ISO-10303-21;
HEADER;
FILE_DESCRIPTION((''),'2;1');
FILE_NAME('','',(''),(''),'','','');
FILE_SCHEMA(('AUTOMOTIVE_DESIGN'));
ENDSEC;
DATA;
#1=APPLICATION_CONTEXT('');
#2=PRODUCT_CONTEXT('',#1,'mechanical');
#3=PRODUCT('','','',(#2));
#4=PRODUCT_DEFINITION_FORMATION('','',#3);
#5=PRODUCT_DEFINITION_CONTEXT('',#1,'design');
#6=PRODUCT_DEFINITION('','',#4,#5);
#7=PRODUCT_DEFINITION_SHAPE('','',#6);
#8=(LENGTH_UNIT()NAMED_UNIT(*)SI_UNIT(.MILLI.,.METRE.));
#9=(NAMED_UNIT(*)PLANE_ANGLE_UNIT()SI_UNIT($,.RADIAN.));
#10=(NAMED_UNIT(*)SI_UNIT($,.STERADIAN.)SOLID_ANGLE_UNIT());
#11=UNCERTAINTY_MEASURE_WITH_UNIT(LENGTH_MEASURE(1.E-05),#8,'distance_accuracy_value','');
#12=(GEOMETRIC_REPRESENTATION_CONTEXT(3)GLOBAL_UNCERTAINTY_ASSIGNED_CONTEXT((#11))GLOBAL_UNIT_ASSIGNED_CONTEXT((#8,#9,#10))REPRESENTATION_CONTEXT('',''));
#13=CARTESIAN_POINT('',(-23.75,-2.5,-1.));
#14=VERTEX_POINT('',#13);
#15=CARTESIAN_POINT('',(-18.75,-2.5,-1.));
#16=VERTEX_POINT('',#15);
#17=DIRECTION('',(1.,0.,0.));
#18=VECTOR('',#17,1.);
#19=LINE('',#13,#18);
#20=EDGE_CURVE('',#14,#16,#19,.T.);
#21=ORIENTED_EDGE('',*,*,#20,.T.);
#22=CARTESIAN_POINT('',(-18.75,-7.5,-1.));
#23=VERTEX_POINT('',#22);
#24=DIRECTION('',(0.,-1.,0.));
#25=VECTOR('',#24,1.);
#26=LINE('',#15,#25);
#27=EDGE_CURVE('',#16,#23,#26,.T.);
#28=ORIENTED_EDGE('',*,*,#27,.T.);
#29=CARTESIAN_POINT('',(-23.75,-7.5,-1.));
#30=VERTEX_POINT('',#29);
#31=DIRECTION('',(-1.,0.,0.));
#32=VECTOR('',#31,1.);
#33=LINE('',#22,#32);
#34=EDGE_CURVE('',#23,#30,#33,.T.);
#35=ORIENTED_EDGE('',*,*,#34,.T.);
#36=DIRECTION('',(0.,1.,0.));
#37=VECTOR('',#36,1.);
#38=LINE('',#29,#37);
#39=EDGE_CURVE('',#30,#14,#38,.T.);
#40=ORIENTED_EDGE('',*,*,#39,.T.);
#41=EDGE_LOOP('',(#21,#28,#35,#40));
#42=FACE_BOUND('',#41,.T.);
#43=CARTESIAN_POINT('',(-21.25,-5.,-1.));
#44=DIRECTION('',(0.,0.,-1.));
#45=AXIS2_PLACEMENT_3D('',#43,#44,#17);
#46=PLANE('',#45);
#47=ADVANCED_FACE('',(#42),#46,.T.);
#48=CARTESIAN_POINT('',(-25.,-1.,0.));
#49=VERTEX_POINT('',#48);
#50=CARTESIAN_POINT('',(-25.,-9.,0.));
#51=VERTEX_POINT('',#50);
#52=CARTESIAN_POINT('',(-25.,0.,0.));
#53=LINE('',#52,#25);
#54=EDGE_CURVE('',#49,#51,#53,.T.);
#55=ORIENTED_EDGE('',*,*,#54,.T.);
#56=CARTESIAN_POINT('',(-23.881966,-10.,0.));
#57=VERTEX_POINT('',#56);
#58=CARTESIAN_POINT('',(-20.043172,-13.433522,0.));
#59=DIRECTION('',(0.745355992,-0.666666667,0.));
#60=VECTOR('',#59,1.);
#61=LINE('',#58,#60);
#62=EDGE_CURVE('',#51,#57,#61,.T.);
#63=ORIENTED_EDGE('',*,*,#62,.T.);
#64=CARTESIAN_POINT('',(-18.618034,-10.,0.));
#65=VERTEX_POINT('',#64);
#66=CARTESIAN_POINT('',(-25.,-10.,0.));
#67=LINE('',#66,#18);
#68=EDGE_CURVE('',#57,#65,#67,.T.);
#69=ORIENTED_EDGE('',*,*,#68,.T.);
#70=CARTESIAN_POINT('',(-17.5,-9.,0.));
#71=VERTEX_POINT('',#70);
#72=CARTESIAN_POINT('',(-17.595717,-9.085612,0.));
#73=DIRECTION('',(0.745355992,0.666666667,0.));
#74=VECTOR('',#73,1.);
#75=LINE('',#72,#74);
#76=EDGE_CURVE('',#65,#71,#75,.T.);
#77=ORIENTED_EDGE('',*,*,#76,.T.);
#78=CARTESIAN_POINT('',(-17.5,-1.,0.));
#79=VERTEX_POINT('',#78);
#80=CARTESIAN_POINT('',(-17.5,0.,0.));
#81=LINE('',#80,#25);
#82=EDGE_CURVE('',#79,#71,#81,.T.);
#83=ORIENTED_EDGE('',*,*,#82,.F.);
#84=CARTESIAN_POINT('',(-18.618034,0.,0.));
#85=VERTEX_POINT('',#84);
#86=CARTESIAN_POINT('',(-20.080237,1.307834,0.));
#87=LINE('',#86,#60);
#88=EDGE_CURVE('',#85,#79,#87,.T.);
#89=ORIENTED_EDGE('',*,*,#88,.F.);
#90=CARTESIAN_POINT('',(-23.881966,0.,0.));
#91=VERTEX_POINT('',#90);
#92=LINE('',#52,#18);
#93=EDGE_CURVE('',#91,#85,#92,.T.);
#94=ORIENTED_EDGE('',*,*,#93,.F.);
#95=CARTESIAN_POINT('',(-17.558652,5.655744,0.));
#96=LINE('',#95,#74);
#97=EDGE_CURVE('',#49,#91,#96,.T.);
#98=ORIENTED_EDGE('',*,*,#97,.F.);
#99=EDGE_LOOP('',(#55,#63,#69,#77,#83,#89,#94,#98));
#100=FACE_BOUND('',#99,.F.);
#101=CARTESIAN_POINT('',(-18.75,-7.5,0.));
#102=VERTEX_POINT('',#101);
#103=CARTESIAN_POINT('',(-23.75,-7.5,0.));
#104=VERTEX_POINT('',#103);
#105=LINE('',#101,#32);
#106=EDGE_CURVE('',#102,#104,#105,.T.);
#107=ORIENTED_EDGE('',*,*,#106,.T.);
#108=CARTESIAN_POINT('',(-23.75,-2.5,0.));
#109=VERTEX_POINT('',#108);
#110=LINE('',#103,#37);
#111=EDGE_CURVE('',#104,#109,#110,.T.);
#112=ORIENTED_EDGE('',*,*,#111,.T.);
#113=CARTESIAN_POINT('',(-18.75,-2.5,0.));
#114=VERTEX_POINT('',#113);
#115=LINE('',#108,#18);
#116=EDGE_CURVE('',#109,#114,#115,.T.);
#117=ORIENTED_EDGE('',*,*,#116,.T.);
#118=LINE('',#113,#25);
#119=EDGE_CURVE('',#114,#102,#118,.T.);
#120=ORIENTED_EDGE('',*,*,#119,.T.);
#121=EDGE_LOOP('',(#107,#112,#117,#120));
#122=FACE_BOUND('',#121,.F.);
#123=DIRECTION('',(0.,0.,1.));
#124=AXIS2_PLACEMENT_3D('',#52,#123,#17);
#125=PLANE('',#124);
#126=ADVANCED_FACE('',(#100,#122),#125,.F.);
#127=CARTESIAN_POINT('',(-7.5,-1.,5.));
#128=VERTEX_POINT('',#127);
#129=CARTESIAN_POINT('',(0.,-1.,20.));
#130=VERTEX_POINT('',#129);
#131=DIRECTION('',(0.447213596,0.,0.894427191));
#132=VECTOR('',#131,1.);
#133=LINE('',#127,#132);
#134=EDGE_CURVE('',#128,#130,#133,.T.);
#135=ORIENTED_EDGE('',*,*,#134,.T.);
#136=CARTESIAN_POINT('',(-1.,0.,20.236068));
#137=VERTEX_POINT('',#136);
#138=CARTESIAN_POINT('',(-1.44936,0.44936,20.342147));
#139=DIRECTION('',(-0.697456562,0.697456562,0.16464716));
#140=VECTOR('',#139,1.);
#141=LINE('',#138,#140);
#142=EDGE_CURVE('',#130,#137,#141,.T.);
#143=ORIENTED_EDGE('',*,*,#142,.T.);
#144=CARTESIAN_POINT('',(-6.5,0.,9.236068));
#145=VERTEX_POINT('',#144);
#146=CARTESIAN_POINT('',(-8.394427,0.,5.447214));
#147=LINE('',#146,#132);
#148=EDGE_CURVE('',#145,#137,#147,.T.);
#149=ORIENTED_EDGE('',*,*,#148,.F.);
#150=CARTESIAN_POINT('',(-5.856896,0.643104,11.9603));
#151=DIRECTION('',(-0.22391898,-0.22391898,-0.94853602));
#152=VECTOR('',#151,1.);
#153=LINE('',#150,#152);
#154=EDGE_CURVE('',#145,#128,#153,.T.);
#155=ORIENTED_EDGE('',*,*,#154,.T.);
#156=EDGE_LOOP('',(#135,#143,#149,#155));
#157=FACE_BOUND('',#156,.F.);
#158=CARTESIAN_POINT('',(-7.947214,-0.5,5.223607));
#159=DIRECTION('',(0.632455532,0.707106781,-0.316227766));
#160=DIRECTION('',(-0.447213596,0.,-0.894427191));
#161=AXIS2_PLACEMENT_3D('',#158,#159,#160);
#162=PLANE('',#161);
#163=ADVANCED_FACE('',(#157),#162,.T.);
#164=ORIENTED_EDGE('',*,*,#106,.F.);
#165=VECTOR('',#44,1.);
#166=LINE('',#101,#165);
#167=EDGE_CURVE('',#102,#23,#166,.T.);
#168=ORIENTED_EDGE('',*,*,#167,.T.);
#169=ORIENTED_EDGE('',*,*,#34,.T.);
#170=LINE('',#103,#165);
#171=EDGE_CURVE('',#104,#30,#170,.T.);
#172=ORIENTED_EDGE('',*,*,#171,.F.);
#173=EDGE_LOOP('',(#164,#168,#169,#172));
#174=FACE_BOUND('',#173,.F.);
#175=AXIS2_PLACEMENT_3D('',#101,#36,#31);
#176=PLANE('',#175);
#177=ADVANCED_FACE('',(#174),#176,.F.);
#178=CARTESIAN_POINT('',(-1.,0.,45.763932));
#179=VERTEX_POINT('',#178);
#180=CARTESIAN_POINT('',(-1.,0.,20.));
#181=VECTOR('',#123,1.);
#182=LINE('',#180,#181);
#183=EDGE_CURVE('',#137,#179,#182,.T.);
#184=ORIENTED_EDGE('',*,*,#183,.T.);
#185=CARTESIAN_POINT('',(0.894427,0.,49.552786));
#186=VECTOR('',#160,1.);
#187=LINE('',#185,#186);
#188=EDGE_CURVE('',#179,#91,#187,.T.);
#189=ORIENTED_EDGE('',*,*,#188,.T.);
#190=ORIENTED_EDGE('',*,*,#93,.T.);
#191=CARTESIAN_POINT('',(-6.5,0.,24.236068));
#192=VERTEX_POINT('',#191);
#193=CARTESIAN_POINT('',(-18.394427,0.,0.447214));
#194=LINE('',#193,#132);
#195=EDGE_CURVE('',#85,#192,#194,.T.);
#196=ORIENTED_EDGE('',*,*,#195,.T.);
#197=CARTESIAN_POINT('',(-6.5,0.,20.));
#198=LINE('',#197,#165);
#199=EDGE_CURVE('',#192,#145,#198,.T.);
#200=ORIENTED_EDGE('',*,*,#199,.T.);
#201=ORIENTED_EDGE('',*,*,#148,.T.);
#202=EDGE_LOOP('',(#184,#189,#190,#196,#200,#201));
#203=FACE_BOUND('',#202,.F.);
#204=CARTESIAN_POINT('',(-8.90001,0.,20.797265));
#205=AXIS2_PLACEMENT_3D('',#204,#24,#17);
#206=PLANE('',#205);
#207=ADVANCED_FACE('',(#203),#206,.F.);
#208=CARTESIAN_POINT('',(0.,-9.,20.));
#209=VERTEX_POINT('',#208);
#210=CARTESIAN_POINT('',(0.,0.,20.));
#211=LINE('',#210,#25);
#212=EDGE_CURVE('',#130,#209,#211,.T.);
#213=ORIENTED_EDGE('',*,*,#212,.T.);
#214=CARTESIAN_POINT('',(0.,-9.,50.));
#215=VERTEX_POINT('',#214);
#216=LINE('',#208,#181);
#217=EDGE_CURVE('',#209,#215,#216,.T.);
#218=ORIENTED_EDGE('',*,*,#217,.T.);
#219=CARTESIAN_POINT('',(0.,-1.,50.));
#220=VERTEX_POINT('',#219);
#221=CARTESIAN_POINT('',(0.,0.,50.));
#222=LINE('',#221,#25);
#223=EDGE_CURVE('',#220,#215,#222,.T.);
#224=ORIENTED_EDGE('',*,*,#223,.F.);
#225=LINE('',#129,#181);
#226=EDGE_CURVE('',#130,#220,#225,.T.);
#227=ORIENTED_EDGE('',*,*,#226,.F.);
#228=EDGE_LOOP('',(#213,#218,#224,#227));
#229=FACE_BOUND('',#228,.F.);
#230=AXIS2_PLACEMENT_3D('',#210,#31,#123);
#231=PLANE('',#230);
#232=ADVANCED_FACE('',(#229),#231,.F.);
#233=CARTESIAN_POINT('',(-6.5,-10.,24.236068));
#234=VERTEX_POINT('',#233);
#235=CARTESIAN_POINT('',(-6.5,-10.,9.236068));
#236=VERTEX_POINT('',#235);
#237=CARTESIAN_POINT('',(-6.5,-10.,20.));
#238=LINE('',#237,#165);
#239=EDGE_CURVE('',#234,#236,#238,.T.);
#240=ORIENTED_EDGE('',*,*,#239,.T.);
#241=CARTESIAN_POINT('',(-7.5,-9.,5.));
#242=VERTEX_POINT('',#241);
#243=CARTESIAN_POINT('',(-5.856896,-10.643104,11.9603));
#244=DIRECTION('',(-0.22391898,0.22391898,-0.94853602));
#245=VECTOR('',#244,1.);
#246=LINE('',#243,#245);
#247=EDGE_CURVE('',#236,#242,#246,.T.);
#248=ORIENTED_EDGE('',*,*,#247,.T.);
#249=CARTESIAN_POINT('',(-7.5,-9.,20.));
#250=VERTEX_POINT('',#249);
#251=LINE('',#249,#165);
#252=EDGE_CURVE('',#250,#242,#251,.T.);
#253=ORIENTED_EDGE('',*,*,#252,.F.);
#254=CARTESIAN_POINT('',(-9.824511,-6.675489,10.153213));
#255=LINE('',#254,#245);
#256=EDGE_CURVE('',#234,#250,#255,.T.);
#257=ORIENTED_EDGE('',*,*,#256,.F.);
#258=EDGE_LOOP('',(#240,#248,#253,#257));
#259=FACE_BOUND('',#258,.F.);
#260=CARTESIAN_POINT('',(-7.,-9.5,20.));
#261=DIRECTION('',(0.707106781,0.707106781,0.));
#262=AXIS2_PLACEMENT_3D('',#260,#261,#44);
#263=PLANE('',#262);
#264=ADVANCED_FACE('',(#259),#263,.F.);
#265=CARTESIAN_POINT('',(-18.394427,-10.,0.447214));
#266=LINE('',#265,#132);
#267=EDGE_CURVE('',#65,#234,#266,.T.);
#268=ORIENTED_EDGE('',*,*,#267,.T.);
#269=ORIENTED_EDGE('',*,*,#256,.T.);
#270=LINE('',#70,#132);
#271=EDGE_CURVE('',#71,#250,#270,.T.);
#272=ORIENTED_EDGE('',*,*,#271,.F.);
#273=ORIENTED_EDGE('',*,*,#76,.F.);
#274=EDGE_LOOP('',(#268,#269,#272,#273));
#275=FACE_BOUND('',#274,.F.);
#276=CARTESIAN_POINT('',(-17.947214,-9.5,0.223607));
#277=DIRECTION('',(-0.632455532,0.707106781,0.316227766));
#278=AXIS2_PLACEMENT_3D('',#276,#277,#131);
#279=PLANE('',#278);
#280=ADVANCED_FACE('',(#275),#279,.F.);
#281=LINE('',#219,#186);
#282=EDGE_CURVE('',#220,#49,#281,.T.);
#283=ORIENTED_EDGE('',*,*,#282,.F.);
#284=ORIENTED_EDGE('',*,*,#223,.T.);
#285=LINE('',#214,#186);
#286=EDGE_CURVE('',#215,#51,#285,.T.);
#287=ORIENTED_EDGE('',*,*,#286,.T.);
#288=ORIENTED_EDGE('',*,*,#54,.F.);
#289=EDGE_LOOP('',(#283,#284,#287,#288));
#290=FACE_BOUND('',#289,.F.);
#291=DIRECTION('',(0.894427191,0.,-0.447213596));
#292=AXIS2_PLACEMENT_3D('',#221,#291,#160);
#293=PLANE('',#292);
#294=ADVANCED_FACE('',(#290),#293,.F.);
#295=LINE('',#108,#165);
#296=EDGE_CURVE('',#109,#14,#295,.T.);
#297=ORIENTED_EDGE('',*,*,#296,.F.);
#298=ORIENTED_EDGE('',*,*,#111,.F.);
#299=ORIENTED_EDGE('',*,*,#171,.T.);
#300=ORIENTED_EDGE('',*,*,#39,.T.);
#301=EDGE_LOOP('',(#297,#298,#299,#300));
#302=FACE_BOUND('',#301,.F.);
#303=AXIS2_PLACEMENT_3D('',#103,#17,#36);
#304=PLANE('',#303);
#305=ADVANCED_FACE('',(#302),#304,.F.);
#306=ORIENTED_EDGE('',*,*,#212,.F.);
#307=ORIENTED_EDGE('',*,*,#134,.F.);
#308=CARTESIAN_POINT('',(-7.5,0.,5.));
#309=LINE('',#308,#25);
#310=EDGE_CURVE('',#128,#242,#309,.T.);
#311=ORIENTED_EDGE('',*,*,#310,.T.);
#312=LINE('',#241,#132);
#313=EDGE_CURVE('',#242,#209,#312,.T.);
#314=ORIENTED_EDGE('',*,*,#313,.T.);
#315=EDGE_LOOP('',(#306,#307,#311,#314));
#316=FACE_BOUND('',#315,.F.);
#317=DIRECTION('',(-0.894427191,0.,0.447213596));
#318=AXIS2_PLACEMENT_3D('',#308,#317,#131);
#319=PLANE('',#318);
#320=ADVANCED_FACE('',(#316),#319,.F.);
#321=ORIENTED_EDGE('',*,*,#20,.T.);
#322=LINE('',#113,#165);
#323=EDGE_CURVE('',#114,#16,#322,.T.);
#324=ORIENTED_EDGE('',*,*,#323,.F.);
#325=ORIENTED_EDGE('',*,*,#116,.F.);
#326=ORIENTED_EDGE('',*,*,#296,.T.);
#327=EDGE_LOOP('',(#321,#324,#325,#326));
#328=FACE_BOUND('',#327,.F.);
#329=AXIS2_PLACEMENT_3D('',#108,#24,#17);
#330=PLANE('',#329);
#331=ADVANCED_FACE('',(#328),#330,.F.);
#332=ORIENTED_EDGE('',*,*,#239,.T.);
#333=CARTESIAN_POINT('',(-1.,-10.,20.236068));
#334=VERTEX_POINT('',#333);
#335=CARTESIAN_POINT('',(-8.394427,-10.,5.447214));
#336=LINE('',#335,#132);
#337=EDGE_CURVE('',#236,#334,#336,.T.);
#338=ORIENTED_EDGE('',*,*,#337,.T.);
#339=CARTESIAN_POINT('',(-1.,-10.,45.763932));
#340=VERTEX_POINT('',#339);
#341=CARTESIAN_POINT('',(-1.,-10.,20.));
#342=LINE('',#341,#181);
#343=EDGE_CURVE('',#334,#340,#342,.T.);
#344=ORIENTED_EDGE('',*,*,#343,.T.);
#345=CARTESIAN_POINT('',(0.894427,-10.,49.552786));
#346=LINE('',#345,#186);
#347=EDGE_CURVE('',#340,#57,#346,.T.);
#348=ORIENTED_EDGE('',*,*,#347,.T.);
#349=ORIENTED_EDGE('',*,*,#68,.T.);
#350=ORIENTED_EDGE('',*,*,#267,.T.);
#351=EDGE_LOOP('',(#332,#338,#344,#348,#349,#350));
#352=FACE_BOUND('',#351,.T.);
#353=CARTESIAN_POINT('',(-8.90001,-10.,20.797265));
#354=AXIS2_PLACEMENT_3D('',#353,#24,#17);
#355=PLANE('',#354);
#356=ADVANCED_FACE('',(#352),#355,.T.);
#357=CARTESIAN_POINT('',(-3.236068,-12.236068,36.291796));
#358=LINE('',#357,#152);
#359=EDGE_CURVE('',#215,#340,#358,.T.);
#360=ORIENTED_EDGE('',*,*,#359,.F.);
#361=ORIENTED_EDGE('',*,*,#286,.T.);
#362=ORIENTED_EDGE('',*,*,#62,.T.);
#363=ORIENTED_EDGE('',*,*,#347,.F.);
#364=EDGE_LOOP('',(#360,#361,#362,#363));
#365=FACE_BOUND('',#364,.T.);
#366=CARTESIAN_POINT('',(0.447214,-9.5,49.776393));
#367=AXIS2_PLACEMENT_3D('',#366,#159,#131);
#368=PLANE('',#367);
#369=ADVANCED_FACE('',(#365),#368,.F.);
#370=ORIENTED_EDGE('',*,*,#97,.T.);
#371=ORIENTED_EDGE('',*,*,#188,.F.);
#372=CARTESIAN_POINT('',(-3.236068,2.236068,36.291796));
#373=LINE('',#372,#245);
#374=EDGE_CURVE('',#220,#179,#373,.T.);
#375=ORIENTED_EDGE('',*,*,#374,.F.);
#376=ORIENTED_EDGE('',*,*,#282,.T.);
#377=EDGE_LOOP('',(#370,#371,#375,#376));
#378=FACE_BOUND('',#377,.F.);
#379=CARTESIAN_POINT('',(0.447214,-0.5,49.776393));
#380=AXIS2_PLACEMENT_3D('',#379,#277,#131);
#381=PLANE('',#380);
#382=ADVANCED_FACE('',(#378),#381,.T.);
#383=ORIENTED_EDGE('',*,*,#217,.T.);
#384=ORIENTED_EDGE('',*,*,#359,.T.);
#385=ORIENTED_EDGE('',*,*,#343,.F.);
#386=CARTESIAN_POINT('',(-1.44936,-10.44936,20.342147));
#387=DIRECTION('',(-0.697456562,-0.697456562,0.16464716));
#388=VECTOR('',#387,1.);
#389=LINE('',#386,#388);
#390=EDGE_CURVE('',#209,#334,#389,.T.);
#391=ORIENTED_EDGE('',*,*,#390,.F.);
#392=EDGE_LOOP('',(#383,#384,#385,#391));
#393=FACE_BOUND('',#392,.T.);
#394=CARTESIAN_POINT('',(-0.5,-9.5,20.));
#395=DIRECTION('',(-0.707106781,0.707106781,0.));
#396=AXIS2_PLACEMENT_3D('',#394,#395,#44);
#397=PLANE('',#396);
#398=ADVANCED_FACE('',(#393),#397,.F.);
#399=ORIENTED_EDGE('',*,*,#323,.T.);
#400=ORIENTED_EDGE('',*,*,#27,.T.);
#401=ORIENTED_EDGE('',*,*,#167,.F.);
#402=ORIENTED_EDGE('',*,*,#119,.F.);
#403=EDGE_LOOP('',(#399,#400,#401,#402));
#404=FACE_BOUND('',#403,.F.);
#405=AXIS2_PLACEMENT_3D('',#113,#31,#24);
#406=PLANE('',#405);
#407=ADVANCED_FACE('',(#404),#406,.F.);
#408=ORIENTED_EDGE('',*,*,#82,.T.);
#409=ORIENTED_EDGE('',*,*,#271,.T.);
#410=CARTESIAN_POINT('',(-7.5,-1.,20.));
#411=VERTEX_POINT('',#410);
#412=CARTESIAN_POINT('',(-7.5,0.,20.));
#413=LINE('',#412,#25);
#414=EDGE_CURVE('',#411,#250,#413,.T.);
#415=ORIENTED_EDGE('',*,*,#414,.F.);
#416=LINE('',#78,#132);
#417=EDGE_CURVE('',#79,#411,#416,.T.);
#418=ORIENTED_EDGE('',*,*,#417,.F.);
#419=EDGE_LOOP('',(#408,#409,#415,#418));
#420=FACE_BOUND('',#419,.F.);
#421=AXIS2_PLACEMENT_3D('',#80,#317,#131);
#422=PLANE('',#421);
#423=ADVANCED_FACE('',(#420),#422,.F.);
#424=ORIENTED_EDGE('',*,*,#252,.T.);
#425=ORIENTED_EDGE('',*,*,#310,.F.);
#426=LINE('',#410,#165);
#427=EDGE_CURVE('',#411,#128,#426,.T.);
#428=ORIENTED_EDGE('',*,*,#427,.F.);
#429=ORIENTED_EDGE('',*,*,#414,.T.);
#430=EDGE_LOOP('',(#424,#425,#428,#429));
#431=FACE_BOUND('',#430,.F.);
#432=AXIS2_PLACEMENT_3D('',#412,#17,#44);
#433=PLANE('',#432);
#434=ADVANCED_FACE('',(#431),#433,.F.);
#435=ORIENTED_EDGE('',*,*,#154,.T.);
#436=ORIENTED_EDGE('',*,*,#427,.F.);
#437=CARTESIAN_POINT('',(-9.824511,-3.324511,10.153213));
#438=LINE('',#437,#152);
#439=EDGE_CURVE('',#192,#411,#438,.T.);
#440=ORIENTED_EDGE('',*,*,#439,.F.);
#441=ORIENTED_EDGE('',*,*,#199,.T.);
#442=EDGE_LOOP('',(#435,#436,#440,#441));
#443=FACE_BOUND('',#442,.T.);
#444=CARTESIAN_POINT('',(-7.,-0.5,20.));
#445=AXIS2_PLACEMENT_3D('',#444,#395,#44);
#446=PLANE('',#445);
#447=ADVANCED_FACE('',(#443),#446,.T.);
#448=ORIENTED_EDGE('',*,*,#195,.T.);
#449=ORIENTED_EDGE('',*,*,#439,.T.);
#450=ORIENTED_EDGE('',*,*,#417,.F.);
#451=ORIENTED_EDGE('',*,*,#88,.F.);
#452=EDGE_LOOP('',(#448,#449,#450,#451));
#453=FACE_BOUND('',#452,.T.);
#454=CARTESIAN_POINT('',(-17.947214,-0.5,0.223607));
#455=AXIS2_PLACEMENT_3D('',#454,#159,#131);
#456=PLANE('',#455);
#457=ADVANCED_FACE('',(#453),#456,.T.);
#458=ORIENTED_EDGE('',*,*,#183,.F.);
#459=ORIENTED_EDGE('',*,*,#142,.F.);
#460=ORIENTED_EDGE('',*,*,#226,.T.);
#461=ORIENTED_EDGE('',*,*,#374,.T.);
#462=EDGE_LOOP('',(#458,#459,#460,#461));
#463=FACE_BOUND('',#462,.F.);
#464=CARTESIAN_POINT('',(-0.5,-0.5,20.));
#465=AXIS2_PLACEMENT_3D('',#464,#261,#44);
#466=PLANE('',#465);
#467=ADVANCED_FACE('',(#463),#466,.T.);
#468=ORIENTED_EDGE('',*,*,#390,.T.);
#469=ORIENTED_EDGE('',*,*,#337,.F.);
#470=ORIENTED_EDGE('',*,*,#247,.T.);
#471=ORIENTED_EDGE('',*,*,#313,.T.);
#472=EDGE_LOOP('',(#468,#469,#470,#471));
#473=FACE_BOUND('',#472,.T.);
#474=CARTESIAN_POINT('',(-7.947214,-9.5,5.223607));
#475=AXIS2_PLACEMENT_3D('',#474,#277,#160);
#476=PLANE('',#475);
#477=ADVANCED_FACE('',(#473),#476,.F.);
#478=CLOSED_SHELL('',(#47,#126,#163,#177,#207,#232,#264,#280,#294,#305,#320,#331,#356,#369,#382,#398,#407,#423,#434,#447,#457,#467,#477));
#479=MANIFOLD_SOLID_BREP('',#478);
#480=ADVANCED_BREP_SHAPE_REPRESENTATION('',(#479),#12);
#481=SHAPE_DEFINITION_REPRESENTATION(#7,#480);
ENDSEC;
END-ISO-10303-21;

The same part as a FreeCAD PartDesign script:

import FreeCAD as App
import Part
import Sketcher

V = App.Vector
Q = App.Units.Quantity


def edges_at(feature, points):
    """Names of the edges that pass closest to the given points."""
    edges = feature.Shape.Edges
    near = lambda p: min(range(len(edges)), key=lambda i: edges[i].distToShape(Part.Vertex(*p))[0])
    return sorted({f"Edge{near(p) + 1}" for p in points})

doc = App.newDocument("Part")
body = doc.addObject("PartDesign::Body", "Body")

sketch1 = doc.addObject("Sketcher::SketchObject", "Sketch")
body.addObject(sketch1)
sketch1.AttachmentSupport = (doc.XZ_Plane, [""])
sketch1.MapMode = "FlatFace"
sketch1.addGeometry([
    Part.LineSegment(V(0, 20, 0), V(0, 50, 0)),
    Part.LineSegment(V(0, 50, 0), V(-25, 0, 0)),
    Part.LineSegment(V(-25, 0, 0), V(-18, 0, 0)),
    Part.LineSegment(V(-18, 0, 0), V(-8, 20, 0)),
    Part.LineSegment(V(-8, 20, 0), V(-8, 5, 0)),
    Part.LineSegment(V(-8, 5, 0), V(0, 20, 0)),
], False)
sketch1.addConstraint([
    Sketcher.Constraint("Coincident", 0, 2, 1, 1),
    Sketcher.Constraint("Coincident", 1, 2, 2, 1),
    Sketcher.Constraint("Coincident", 2, 2, 3, 1),
    Sketcher.Constraint("Coincident", 3, 2, 4, 1),
    Sketcher.Constraint("Coincident", 4, 2, 5, 1),
    Sketcher.Constraint("Coincident", 5, 2, 0, 1),
    Sketcher.Constraint("Vertical", 0),
    Sketcher.Constraint("Horizontal", 2),
    Sketcher.Constraint("Vertical", 4),
    Sketcher.Constraint("PointOnObject", 0, 2, -2),
    Sketcher.Constraint("PointOnObject", 1, 2, -1),
    Sketcher.Constraint("Parallel", 1, 3),
    Sketcher.Constraint("Parallel", 3, 5),
    Sketcher.Constraint("Horizontal", 3, 2, 5, 2),
    Sketcher.Constraint("DistanceY", 0, 1, 0, 2, Q("30 mm")),
    Sketcher.Constraint("DistanceY", 4, 2, 4, 1, Q("15 mm")),
    Sketcher.Constraint("DistanceX", 2, 1, 2, 2, Q("7.5 mm")),
    Sketcher.Constraint("DistanceY", -1, 1, 0, 2, Q("50 mm")),
])
pad1 = doc.addObject("PartDesign::Pad", "Pad")
body.addObject(pad1)
pad1.Profile = sketch1
pad1.Length = 10

sketch2 = doc.addObject("Sketcher::SketchObject", "Sketch001")
body.addObject(sketch2)
sketch2.AttachmentSupport = (doc.XY_Plane, [""])
sketch2.MapMode = "FlatFace"
sketch2.addGeometry([
    Part.LineSegment(V(-24, -8, 0), V(-24, -2, 0)),
    Part.LineSegment(V(-24, -2, 0), V(-19, -2, 0)),
    Part.LineSegment(V(-19, -2, 0), V(-19, -8, 0)),
    Part.LineSegment(V(-19, -8, 0), V(-24, -8, 0)),
], False)
sketch2.addConstraint([
    Sketcher.Constraint("Coincident", 0, 2, 1, 1),
    Sketcher.Constraint("Coincident", 1, 2, 2, 1),
    Sketcher.Constraint("Coincident", 2, 2, 3, 1),
    Sketcher.Constraint("Coincident", 3, 2, 0, 1),
    Sketcher.Constraint("Vertical", 0),
    Sketcher.Constraint("Horizontal", 1),
    Sketcher.Constraint("Vertical", 2),
    Sketcher.Constraint("Horizontal", 3),
    Sketcher.Constraint("Equal", 3, 0),
    Sketcher.Constraint("DistanceX", 1, 1, 1, 2, Q("5 mm")),
    Sketcher.Constraint("DistanceY", 0, 2, -1, 1, Q("2.5 mm")),
    Sketcher.Constraint("DistanceX", 0, 2, -1, 1, Q("23.75 mm")),
])
pad2 = doc.addObject("PartDesign::Pad", "Pad001")
body.addObject(pad2)
pad2.Profile = sketch2
pad2.Length = 1
pad2.Reversed = True
doc.recompute()

chamfer = doc.addObject("PartDesign::Chamfer", "Chamfer")
body.addObject(chamfer)
chamfer.Base = (pad2, edges_at(pad2, [
    (-12.5, -10, 25),
    (0, -10, 35),
    (-12.5, 0, 25),
    (0, 0, 35),
    (-12.5, -10, 10),
    (-7.5, -10, 12.5),
    (-12.5, 0, 10),
    (-7.5, 0, 12.5),
    (-3.75, -10, 12.5),
    (-3.75, 0, 12.5),
]))
chamfer.Size = 1

doc.recompute()
